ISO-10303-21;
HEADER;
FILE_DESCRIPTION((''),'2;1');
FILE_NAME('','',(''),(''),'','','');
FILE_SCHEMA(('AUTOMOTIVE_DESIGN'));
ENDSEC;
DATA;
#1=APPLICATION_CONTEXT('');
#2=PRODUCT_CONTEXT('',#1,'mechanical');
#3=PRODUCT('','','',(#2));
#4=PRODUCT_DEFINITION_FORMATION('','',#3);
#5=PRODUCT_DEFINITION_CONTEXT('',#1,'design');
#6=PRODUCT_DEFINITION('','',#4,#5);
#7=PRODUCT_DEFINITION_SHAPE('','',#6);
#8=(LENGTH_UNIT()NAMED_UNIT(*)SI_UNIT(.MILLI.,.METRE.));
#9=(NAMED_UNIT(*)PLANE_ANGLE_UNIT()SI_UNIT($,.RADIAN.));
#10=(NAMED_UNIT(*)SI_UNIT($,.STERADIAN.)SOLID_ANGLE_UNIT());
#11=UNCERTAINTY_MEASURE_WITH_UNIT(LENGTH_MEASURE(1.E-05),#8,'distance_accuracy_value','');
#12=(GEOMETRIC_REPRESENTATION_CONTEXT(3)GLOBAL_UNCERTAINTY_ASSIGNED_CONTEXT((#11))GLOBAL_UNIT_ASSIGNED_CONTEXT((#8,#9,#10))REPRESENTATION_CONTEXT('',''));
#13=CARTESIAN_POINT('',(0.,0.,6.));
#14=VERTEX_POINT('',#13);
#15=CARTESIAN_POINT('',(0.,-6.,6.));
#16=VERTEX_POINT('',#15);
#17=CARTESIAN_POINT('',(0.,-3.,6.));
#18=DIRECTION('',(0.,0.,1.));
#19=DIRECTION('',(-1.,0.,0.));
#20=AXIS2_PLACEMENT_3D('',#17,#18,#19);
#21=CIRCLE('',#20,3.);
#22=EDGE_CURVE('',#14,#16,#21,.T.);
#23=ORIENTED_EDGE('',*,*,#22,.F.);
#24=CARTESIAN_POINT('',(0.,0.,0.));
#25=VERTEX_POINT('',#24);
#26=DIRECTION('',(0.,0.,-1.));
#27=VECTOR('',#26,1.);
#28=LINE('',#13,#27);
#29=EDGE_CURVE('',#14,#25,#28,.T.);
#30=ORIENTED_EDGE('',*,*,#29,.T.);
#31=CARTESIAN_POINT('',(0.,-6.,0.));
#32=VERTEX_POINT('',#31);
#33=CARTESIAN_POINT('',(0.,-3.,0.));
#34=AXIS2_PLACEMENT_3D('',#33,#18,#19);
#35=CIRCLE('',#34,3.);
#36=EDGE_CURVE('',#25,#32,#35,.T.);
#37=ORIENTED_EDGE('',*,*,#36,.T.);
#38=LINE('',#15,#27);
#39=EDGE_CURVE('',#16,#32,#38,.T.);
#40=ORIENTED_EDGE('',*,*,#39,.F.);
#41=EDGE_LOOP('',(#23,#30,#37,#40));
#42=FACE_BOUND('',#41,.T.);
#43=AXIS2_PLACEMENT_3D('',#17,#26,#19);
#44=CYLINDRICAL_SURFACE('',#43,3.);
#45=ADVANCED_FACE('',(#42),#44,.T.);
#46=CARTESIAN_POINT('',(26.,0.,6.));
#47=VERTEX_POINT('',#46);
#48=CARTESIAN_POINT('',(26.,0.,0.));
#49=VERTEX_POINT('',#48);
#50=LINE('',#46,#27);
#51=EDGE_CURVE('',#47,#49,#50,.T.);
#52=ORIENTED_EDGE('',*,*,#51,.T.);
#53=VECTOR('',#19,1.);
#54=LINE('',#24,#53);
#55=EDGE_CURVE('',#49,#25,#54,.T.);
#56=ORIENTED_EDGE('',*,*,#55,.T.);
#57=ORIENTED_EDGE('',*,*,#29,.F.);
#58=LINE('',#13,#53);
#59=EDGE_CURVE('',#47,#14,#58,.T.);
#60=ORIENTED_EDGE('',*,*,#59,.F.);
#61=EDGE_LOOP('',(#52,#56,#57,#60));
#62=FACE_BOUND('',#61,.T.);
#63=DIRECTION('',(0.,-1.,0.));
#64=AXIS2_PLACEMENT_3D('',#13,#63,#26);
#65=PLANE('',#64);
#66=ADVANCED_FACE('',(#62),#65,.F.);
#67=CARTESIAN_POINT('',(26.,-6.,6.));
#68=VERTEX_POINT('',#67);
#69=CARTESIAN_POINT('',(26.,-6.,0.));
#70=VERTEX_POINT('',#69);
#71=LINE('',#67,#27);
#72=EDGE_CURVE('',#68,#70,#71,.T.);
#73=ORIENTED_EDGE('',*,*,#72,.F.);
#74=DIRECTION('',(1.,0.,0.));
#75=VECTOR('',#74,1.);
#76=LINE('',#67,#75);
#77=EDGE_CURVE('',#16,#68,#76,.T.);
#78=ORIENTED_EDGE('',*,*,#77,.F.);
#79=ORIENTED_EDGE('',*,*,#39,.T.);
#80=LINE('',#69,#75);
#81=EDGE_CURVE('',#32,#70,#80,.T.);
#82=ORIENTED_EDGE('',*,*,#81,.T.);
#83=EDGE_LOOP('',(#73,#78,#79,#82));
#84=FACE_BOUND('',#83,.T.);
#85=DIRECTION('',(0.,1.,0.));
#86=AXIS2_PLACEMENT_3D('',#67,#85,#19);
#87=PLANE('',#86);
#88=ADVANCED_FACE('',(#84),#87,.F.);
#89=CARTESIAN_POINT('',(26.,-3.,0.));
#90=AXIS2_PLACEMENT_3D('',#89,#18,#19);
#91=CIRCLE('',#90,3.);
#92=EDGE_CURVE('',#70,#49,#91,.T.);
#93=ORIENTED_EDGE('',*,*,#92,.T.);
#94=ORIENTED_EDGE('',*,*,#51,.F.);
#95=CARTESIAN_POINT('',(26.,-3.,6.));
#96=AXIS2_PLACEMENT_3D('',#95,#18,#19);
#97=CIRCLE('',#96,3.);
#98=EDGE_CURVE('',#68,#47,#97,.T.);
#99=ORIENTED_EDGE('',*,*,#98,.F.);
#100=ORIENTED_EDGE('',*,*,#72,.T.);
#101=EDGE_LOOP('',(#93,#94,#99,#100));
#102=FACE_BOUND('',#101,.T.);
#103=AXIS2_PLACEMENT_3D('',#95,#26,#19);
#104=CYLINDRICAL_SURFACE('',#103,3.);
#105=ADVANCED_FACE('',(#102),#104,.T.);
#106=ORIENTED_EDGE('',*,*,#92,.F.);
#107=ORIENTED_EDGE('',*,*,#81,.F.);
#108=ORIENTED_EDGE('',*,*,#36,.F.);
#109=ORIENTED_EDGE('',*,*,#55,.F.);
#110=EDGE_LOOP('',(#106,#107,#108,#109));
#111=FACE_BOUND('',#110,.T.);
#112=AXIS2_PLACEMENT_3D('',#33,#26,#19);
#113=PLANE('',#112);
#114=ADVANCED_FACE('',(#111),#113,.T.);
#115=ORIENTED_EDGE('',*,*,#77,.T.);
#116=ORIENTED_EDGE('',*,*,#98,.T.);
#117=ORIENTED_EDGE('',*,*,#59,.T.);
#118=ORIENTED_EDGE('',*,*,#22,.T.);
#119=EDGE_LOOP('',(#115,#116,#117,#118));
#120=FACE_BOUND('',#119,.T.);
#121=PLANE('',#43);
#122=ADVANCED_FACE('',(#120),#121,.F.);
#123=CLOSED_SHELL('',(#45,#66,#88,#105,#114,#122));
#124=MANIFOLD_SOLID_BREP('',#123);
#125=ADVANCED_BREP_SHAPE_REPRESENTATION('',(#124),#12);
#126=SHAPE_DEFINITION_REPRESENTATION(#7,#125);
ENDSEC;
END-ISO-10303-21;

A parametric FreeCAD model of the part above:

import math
import FreeCAD as App
import Part
import Sketcher
from FreeCAD import Vector
Q = App.Units.Quantity

doc = App.newDocument("Part")
body = doc.addObject("PartDesign::Body", "Body")

sketch1 = body.newObject("Sketcher::SketchObject", "Sketch")
sketch1.AttachmentSupport = (doc.getObject("XY_Plane"), [""])
sketch1.MapMode = "FlatFace"
sketch1.addGeometry([
    Part.LineSegment(Vector(26, 0, 0), Vector(0, 0, 0)),
    Part.ArcOfCircle(Part.Circle(Vector(0, -3, 0), Vector(0, 0, 1), 3), math.radians(90), math.radians(270)),
    Part.LineSegment(Vector(0, -6, 0), Vector(26, -6, 0)),
    Part.ArcOfCircle(Part.Circle(Vector(26, -3, 0), Vector(0, 0, 1), 3), math.radians(-90), math.radians(90)),
], False)
sketch1.addConstraint([
    Sketcher.Constraint("Tangent", 0, 2, 1, 1),
    Sketcher.Constraint("Tangent", 1, 2, 2, 1),
    Sketcher.Constraint("Tangent", 2, 2, 3, 1),
    Sketcher.Constraint("Tangent", 3, 2, 0, 1),
    Sketcher.Constraint("Horizontal", 0),
    Sketcher.Constraint("Horizontal", 2),
    Sketcher.Constraint("Coincident", 0, 2, -1, 1),
    Sketcher.Constraint("Radius", 1, Q("3 mm")),
    Sketcher.Constraint("DistanceX", 0, 2, 0, 1, Q("26 mm")),
])
pad1 = body.newObject("PartDesign::Pad", "Pad")
pad1.Profile = sketch1
pad1.Length = 6

doc.recompute()
